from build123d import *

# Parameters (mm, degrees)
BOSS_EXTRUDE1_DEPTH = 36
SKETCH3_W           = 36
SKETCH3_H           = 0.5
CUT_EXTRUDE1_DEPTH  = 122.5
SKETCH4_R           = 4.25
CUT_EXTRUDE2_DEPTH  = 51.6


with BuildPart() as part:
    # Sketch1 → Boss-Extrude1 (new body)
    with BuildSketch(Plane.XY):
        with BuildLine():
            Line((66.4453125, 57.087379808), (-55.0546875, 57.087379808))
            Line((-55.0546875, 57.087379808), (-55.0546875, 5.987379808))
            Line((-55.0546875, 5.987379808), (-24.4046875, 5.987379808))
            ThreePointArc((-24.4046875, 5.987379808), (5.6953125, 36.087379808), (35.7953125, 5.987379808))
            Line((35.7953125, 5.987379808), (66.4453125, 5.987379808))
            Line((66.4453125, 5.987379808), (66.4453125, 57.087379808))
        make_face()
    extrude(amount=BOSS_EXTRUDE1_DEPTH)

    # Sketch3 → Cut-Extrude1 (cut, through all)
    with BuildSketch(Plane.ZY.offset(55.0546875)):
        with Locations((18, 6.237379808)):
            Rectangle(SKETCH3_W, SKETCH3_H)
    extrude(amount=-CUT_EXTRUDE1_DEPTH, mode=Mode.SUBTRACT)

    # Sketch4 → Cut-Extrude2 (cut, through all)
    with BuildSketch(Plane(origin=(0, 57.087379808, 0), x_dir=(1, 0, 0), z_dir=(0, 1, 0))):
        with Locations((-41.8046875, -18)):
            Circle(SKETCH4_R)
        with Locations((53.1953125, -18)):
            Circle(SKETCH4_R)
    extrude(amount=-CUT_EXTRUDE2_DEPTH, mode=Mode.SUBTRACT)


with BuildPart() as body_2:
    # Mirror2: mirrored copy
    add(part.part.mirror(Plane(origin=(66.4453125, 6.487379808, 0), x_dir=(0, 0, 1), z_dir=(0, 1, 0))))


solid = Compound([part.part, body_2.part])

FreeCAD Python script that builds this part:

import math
import FreeCAD as App
import Part
import Sketcher


def add_polygon(sketch, points):
    """Adds a closed chain of lines whose ends are joined by coincident constraints."""
    first, n = sketch.GeometryCount, len(points)
    for a, b in zip(points, points[1:] + points[:1]):
        sketch.addGeometry(Part.LineSegment(App.Vector(*a, 0), App.Vector(*b, 0)), False)
    for i in range(n):
        sketch.addConstraint(Sketcher.Constraint("Coincident", first + i, 2, first + (i + 1) % n, 1))

doc = App.newDocument("Part")
body = doc.addObject("PartDesign::Body", "Body")

# Sketch on XY plane
sketch1 = doc.addObject("Sketcher::SketchObject", "Sketch")
body.addObject(sketch1)
sketch1.AttachmentSupport = (doc.XY_Plane, [""])
sketch1.MapMode = "FlatFace"
sketch1.addGeometry([
    Part.LineSegment(App.Vector(66, 57, 0), App.Vector(-55, 57, 0)),  # 0
    Part.LineSegment(App.Vector(-55, 57, 0), App.Vector(-55, 6, 0)),  # 1
    Part.LineSegment(App.Vector(-55, 6, 0), App.Vector(-24, 6, 0)),  # 2
    Part.ArcOfCircle(Part.Circle(App.Vector(6, 6, 0), App.Vector(0, 0, 1), 30), math.radians(0), math.radians(180)),  # 3
    Part.LineSegment(App.Vector(36, 6, 0), App.Vector(66, 6, 0)),  # 4
    Part.LineSegment(App.Vector(66, 6, 0), App.Vector(66, 57, 0)),  # 5
], False)
sketch1.addConstraint([
    Sketcher.Constraint("Coincident", 0, 2, 1, 1),
    Sketcher.Constraint("Coincident", 1, 2, 2, 1),
    Sketcher.Constraint("Coincident", 2, 2, 3, 2),
    Sketcher.Constraint("Coincident", 3, 1, 4, 1),
    Sketcher.Constraint("Coincident", 4, 2, 5, 1),
    Sketcher.Constraint("Coincident", 5, 2, 0, 1),
    Sketcher.Constraint("Horizontal", 0),
    Sketcher.Constraint("Vertical", 1),
    Sketcher.Constraint("Horizontal", 2),
    Sketcher.Constraint("Horizontal", 4),
    Sketcher.Constraint("Vertical", 5),
    Sketcher.Constraint("Horizontal", 3, 3, 1, 2),
    Sketcher.Constraint("Horizontal", 2, 2, 3, 1),
    Sketcher.Constraint("Equal", 2, 4),
    Sketcher.Constraint("Radius", 3, 30.1),
    Sketcher.Constraint("DistanceX", 0, 2, 0, 1, 121.5),
    Sketcher.Constraint("DistanceY", 1, 2, 1, 1, 51.1),
    Sketcher.Constraint("DistanceY", -1, 1, 3, 3, 5.98738),
    Sketcher.Constraint("DistanceX", -1, 1, 3, 3, 5.695312),
])
pad1 = doc.addObject("PartDesign::Pad", "Pad")
body.addObject(pad1)
pad1.Profile = sketch1
pad1.Length = 36

# Sketch on YZ plane
sketch2 = doc.addObject("Sketcher::SketchObject", "Sketch001")
body.addObject(sketch2)
sketch2.AttachmentSupport = (doc.YZ_Plane, [""])
sketch2.MapMode = "FlatFace"
sketch2.AttachmentOffset = App.Placement(App.Vector(0, 0, -55.054688), App.Rotation())
add_polygon(sketch2, [(6.5, 0), (6, 0), (6, 36), (6.5, 36)])  # lines 0-3
sketch2.addConstraint([
    Sketcher.Constraint("Horizontal", 0),
    Sketcher.Constraint("Vertical", 1),
    Sketcher.Constraint("Horizontal", 2),
    Sketcher.Constraint("Vertical", 3),
    Sketcher.Constraint("PointOnObject", 0, 2, -1),
    Sketcher.Constraint("DistanceY", 1, 1, 1, 2, 36.0),
    Sketcher.Constraint("DistanceX", 0, 2, 0, 1, 0.5),
    Sketcher.Constraint("DistanceX", -1, 1, 0, 2, 5.98738),
])
pocket1 = doc.addObject("PartDesign::Pocket", "Pocket")
body.addObject(pocket1)
pocket1.Profile = sketch2
pocket1.Type = "ThroughAll"
pocket1.Reversed = True

# Sketch on XZ plane
sketch3 = doc.addObject("Sketcher::SketchObject", "Sketch002")
body.addObject(sketch3)
sketch3.AttachmentSupport = (doc.XZ_Plane, [""])
sketch3.MapMode = "FlatFace"
sketch3.AttachmentOffset = App.Placement(App.Vector(0, 0, -57.08738), App.Rotation())
sketch3.addGeometry([
    Part.Circle(App.Vector(-41.8, 18, 0), App.Vector(0, 0, 1), 4.2),
    Part.Circle(App.Vector(53.2, 18, 0), App.Vector(0, 0, 1), 4.2),
], False)
sketch3.addConstraint([
    Sketcher.Constraint("Equal", 0, 1),
    Sketcher.Constraint("Horizontal", 0, 3, 1, 3),
    Sketcher.Constraint("Diameter", 0, 8.5),
    Sketcher.Constraint("DistanceY", -1, 1, 0, 3, 18.0),
    Sketcher.Constraint("DistanceX", 0, 3, 1, 3, 95.0),
    Sketcher.Constraint("DistanceX", 0, 3, -1, 1, 41.804688),
])
pocket2 = doc.addObject("PartDesign::Pocket", "Pocket001")
body.addObject(pocket2)
pocket2.Profile = sketch3
pocket2.Type = "ThroughAll"
pocket2.Reversed = True
body2 = doc.addObject("PartDesign::Body", "Body001")
doc.recompute()

mirroring = doc.addObject("Part::Mirroring", "Mirroring")
mirroring.Source = body
mirroring.Base = App.Vector(66.445312, 6.48738, 0)
mirroring.Normal = App.Vector(0, 1, 0)
body2.BaseFeature = mirroring
doc.recompute()
mirroring.Visibility = False

doc.recompute()
